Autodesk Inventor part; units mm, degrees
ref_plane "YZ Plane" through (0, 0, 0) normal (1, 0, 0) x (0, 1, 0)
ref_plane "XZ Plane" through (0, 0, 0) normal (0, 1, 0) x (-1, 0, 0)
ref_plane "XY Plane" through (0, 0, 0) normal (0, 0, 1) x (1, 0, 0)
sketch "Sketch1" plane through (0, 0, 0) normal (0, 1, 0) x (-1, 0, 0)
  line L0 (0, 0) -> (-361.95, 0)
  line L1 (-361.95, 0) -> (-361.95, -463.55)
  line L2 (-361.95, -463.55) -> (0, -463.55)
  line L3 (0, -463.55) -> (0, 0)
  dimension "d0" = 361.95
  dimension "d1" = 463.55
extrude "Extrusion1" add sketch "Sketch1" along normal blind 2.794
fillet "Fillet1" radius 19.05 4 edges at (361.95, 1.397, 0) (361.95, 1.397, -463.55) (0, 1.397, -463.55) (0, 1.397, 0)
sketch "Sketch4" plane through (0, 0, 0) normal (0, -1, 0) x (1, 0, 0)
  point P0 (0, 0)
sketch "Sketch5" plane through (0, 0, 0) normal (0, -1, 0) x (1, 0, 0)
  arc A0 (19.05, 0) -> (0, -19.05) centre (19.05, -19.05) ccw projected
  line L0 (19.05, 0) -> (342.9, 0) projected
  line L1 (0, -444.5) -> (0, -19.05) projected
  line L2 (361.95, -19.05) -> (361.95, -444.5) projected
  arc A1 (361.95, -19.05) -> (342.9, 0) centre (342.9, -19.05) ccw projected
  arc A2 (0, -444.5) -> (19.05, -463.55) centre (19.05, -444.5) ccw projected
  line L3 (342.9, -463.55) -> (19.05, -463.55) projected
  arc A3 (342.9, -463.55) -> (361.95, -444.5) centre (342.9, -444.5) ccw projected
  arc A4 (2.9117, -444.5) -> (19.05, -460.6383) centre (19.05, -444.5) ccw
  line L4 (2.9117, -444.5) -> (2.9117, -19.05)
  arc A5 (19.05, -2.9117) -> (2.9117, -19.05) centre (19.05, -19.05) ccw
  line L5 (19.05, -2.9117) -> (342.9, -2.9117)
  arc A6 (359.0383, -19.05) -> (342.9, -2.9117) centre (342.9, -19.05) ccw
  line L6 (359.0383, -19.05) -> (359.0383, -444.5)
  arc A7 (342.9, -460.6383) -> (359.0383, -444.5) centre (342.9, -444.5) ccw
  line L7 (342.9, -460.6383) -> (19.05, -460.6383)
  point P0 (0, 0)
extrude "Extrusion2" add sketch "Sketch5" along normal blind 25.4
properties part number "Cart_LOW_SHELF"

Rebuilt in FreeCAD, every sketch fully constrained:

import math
import FreeCAD as App
import Part
import Sketcher
Q = App.Units.Quantity


def edges_at(feature, points):
    """Names of the edges that pass closest to the given points."""
    edges = feature.Shape.Edges
    near = lambda p: min(range(len(edges)), key=lambda i: edges[i].distToShape(Part.Vertex(*p))[0])
    return sorted({f"Edge{near(p) + 1}" for p in points})

doc = App.newDocument("Part")
body = doc.addObject("PartDesign::Body", "Body")

# Sketch on XZ plane
sketch1 = body.newObject("Sketcher::SketchObject", "Sketch")
sketch1.AttachmentSupport = (doc.getObject("XZ_Plane"), [""])
sketch1.MapMode = "FlatFace"
sketch1.addGeometry([
    Part.LineSegment(App.Vector(0, -464, 0), App.Vector(0, 0, 0)),
    Part.LineSegment(App.Vector(0, 0, 0), App.Vector(362, 0, 0)),
    Part.LineSegment(App.Vector(362, 0, 0), App.Vector(362, -464, 0)),
    Part.LineSegment(App.Vector(362, -464, 0), App.Vector(0, -464, 0)),
], False)
sketch1.addConstraint([
    Sketcher.Constraint("Coincident", 0, 2, 1, 1),
    Sketcher.Constraint("Coincident", 1, 2, 2, 1),
    Sketcher.Constraint("Coincident", 2, 2, 3, 1),
    Sketcher.Constraint("Coincident", 3, 2, 0, 1),
    Sketcher.Constraint("Vertical", 0),
    Sketcher.Constraint("Horizontal", 1),
    Sketcher.Constraint("Vertical", 2),
    Sketcher.Constraint("Horizontal", 3),
    Sketcher.Constraint("Coincident", 0, 2, -1, 1),
    Sketcher.Constraint("DistanceX", 1, 1, 1, 2, Q("14.25 in")),
    Sketcher.Constraint("DistanceY", 0, 1, 0, 2, Q("18.25 in")),
])
pad1 = body.newObject("PartDesign::Pad", "Pad")
pad1.Profile = sketch1
pad1.Length = Q("0.11 in")
pad1.Reversed = True
doc.recompute()

fillet = body.newObject("PartDesign::Fillet", "Fillet")
fillet.Base = (pad1, edges_at(pad1, [
    (361.95, 1.397, 0),
    (361.95, 1.397, -463.55),
    (0, 1.397, -463.55),
    (0, 1.397, 0),
]))
fillet.Radius = Q("0.75 in")

# Sketch on XZ plane
sketch2 = body.newObject("Sketcher::SketchObject", "Sketch001")
sketch2.AttachmentSupport = (doc.getObject("XZ_Plane"), [""])
sketch2.MapMode = "FlatFace"
sketch2.addGeometry([
    Part.LineSegment(App.Vector(343, 0, 0), App.Vector(19, 0, 0)),  # 0
    Part.ArcOfCircle(Part.Circle(App.Vector(19, -19, 0), App.Vector(0, 0, 1), 19), math.radians(90), math.radians(180)),  # 1
    Part.LineSegment(App.Vector(0, -19, 0), App.Vector(0, -444, 0)),  # 2
    Part.ArcOfCircle(Part.Circle(App.Vector(19, -444, 0), App.Vector(0, 0, 1), 19), math.radians(180), math.radians(270)),  # 3
    Part.LineSegment(App.Vector(19, -464, 0), App.Vector(343, -464, 0)),  # 4
    Part.ArcOfCircle(Part.Circle(App.Vector(343, -444, 0), App.Vector(0, 0, 1), 19), math.radians(-90), math.radians(0)),  # 5
    Part.LineSegment(App.Vector(362, -444, 0), App.Vector(362, -19, 0)),  # 6
    Part.ArcOfCircle(Part.Circle(App.Vector(343, -19, 0), App.Vector(0, 0, 1), 19), math.radians(0), math.radians(90)),  # 7
    Part.ArcOfCircle(Part.Circle(App.Vector(19, -444, 0), App.Vector(0, 0, 1), 16), math.radians(180), math.radians(270)),  # 8
    Part.LineSegment(App.Vector(3, -444, 0), App.Vector(3, -19, 0)),  # 9
    Part.ArcOfCircle(Part.Circle(App.Vector(19, -19, 0), App.Vector(0, 0, 1), 16), math.radians(90), math.radians(180)),  # 10
    Part.LineSegment(App.Vector(19, -3, 0), App.Vector(343, -3, 0)),  # 11
    Part.ArcOfCircle(Part.Circle(App.Vector(343, -19, 0), App.Vector(0, 0, 1), 16), math.radians(0), math.radians(90)),  # 12
    Part.LineSegment(App.Vector(359, -19, 0), App.Vector(359, -444, 0)),  # 13
    Part.ArcOfCircle(Part.Circle(App.Vector(343, -444, 0), App.Vector(0, 0, 1), 16), math.radians(-90), math.radians(0)),  # 14
    Part.LineSegment(App.Vector(343, -461, 0), App.Vector(19, -461, 0)),  # 15
], False)
sketch2.addConstraint([
    Sketcher.Constraint("Tangent", 0, 2, 1, 1),
    Sketcher.Constraint("Tangent", 1, 2, 2, 1),
    Sketcher.Constraint("Tangent", 2, 2, 3, 1),
    Sketcher.Constraint("Tangent", 3, 2, 4, 1),
    Sketcher.Constraint("Tangent", 4, 2, 5, 1),
    Sketcher.Constraint("Tangent", 5, 2, 6, 1),
    Sketcher.Constraint("Tangent", 6, 2, 7, 1),
    Sketcher.Constraint("Tangent", 7, 2, 0, 1),
    Sketcher.Constraint("Tangent", 8, 1, 9, 1),
    Sketcher.Constraint("Tangent", 9, 2, 10, 2),
    Sketcher.Constraint("Tangent", 10, 1, 11, 1),
    Sketcher.Constraint("Tangent", 11, 2, 12, 2),
    Sketcher.Constraint("Tangent", 12, 1, 13, 1),
    Sketcher.Constraint("Tangent", 13, 2, 14, 2),
    Sketcher.Constraint("Tangent", 14, 1, 15, 1),
    Sketcher.Constraint("Tangent", 15, 2, 8, 2),
    Sketcher.Constraint("Horizontal", 0),
    Sketcher.Constraint("Vertical", 2),
    Sketcher.Constraint("Horizontal", 4),
    Sketcher.Constraint("Vertical", 6),
    Sketcher.Constraint("Vertical", 9),
    Sketcher.Constraint("Horizontal", 11),
    Sketcher.Constraint("Vertical", 13),
    Sketcher.Constraint("Horizontal", 15),
    Sketcher.Constraint("Coincident", 8, 3, 3, 3),
    Sketcher.Constraint("Coincident", 10, 3, 1, 3),
    Sketcher.Constraint("Coincident", 12, 3, 7, 3),
    Sketcher.Constraint("Equal", 1, 3),
    Sketcher.Constraint("Equal", 3, 5),
    Sketcher.Constraint("Equal", 5, 7),
    Sketcher.Constraint("Equal", 12, 14),
    Sketcher.Constraint("PointOnObject", 0, 2, -1),
    Sketcher.Constraint("PointOnObject", 1, 2, -2),
    Sketcher.Constraint("Radius", 1, Q("0.75 in")),
    Sketcher.Constraint("DistanceX", 0, 2, 0, 1, Q("12.75 in")),
    Sketcher.Constraint("DistanceY", 2, 2, 2, 1, Q("16.75 in")),
    Sketcher.Constraint("Radius", 8, Q("16.1383 mm")),
])
pad2 = body.newObject("PartDesign::Pad", "Pad001")
pad2.Profile = sketch2
pad2.Length = Q("1 in")

doc.recompute()
